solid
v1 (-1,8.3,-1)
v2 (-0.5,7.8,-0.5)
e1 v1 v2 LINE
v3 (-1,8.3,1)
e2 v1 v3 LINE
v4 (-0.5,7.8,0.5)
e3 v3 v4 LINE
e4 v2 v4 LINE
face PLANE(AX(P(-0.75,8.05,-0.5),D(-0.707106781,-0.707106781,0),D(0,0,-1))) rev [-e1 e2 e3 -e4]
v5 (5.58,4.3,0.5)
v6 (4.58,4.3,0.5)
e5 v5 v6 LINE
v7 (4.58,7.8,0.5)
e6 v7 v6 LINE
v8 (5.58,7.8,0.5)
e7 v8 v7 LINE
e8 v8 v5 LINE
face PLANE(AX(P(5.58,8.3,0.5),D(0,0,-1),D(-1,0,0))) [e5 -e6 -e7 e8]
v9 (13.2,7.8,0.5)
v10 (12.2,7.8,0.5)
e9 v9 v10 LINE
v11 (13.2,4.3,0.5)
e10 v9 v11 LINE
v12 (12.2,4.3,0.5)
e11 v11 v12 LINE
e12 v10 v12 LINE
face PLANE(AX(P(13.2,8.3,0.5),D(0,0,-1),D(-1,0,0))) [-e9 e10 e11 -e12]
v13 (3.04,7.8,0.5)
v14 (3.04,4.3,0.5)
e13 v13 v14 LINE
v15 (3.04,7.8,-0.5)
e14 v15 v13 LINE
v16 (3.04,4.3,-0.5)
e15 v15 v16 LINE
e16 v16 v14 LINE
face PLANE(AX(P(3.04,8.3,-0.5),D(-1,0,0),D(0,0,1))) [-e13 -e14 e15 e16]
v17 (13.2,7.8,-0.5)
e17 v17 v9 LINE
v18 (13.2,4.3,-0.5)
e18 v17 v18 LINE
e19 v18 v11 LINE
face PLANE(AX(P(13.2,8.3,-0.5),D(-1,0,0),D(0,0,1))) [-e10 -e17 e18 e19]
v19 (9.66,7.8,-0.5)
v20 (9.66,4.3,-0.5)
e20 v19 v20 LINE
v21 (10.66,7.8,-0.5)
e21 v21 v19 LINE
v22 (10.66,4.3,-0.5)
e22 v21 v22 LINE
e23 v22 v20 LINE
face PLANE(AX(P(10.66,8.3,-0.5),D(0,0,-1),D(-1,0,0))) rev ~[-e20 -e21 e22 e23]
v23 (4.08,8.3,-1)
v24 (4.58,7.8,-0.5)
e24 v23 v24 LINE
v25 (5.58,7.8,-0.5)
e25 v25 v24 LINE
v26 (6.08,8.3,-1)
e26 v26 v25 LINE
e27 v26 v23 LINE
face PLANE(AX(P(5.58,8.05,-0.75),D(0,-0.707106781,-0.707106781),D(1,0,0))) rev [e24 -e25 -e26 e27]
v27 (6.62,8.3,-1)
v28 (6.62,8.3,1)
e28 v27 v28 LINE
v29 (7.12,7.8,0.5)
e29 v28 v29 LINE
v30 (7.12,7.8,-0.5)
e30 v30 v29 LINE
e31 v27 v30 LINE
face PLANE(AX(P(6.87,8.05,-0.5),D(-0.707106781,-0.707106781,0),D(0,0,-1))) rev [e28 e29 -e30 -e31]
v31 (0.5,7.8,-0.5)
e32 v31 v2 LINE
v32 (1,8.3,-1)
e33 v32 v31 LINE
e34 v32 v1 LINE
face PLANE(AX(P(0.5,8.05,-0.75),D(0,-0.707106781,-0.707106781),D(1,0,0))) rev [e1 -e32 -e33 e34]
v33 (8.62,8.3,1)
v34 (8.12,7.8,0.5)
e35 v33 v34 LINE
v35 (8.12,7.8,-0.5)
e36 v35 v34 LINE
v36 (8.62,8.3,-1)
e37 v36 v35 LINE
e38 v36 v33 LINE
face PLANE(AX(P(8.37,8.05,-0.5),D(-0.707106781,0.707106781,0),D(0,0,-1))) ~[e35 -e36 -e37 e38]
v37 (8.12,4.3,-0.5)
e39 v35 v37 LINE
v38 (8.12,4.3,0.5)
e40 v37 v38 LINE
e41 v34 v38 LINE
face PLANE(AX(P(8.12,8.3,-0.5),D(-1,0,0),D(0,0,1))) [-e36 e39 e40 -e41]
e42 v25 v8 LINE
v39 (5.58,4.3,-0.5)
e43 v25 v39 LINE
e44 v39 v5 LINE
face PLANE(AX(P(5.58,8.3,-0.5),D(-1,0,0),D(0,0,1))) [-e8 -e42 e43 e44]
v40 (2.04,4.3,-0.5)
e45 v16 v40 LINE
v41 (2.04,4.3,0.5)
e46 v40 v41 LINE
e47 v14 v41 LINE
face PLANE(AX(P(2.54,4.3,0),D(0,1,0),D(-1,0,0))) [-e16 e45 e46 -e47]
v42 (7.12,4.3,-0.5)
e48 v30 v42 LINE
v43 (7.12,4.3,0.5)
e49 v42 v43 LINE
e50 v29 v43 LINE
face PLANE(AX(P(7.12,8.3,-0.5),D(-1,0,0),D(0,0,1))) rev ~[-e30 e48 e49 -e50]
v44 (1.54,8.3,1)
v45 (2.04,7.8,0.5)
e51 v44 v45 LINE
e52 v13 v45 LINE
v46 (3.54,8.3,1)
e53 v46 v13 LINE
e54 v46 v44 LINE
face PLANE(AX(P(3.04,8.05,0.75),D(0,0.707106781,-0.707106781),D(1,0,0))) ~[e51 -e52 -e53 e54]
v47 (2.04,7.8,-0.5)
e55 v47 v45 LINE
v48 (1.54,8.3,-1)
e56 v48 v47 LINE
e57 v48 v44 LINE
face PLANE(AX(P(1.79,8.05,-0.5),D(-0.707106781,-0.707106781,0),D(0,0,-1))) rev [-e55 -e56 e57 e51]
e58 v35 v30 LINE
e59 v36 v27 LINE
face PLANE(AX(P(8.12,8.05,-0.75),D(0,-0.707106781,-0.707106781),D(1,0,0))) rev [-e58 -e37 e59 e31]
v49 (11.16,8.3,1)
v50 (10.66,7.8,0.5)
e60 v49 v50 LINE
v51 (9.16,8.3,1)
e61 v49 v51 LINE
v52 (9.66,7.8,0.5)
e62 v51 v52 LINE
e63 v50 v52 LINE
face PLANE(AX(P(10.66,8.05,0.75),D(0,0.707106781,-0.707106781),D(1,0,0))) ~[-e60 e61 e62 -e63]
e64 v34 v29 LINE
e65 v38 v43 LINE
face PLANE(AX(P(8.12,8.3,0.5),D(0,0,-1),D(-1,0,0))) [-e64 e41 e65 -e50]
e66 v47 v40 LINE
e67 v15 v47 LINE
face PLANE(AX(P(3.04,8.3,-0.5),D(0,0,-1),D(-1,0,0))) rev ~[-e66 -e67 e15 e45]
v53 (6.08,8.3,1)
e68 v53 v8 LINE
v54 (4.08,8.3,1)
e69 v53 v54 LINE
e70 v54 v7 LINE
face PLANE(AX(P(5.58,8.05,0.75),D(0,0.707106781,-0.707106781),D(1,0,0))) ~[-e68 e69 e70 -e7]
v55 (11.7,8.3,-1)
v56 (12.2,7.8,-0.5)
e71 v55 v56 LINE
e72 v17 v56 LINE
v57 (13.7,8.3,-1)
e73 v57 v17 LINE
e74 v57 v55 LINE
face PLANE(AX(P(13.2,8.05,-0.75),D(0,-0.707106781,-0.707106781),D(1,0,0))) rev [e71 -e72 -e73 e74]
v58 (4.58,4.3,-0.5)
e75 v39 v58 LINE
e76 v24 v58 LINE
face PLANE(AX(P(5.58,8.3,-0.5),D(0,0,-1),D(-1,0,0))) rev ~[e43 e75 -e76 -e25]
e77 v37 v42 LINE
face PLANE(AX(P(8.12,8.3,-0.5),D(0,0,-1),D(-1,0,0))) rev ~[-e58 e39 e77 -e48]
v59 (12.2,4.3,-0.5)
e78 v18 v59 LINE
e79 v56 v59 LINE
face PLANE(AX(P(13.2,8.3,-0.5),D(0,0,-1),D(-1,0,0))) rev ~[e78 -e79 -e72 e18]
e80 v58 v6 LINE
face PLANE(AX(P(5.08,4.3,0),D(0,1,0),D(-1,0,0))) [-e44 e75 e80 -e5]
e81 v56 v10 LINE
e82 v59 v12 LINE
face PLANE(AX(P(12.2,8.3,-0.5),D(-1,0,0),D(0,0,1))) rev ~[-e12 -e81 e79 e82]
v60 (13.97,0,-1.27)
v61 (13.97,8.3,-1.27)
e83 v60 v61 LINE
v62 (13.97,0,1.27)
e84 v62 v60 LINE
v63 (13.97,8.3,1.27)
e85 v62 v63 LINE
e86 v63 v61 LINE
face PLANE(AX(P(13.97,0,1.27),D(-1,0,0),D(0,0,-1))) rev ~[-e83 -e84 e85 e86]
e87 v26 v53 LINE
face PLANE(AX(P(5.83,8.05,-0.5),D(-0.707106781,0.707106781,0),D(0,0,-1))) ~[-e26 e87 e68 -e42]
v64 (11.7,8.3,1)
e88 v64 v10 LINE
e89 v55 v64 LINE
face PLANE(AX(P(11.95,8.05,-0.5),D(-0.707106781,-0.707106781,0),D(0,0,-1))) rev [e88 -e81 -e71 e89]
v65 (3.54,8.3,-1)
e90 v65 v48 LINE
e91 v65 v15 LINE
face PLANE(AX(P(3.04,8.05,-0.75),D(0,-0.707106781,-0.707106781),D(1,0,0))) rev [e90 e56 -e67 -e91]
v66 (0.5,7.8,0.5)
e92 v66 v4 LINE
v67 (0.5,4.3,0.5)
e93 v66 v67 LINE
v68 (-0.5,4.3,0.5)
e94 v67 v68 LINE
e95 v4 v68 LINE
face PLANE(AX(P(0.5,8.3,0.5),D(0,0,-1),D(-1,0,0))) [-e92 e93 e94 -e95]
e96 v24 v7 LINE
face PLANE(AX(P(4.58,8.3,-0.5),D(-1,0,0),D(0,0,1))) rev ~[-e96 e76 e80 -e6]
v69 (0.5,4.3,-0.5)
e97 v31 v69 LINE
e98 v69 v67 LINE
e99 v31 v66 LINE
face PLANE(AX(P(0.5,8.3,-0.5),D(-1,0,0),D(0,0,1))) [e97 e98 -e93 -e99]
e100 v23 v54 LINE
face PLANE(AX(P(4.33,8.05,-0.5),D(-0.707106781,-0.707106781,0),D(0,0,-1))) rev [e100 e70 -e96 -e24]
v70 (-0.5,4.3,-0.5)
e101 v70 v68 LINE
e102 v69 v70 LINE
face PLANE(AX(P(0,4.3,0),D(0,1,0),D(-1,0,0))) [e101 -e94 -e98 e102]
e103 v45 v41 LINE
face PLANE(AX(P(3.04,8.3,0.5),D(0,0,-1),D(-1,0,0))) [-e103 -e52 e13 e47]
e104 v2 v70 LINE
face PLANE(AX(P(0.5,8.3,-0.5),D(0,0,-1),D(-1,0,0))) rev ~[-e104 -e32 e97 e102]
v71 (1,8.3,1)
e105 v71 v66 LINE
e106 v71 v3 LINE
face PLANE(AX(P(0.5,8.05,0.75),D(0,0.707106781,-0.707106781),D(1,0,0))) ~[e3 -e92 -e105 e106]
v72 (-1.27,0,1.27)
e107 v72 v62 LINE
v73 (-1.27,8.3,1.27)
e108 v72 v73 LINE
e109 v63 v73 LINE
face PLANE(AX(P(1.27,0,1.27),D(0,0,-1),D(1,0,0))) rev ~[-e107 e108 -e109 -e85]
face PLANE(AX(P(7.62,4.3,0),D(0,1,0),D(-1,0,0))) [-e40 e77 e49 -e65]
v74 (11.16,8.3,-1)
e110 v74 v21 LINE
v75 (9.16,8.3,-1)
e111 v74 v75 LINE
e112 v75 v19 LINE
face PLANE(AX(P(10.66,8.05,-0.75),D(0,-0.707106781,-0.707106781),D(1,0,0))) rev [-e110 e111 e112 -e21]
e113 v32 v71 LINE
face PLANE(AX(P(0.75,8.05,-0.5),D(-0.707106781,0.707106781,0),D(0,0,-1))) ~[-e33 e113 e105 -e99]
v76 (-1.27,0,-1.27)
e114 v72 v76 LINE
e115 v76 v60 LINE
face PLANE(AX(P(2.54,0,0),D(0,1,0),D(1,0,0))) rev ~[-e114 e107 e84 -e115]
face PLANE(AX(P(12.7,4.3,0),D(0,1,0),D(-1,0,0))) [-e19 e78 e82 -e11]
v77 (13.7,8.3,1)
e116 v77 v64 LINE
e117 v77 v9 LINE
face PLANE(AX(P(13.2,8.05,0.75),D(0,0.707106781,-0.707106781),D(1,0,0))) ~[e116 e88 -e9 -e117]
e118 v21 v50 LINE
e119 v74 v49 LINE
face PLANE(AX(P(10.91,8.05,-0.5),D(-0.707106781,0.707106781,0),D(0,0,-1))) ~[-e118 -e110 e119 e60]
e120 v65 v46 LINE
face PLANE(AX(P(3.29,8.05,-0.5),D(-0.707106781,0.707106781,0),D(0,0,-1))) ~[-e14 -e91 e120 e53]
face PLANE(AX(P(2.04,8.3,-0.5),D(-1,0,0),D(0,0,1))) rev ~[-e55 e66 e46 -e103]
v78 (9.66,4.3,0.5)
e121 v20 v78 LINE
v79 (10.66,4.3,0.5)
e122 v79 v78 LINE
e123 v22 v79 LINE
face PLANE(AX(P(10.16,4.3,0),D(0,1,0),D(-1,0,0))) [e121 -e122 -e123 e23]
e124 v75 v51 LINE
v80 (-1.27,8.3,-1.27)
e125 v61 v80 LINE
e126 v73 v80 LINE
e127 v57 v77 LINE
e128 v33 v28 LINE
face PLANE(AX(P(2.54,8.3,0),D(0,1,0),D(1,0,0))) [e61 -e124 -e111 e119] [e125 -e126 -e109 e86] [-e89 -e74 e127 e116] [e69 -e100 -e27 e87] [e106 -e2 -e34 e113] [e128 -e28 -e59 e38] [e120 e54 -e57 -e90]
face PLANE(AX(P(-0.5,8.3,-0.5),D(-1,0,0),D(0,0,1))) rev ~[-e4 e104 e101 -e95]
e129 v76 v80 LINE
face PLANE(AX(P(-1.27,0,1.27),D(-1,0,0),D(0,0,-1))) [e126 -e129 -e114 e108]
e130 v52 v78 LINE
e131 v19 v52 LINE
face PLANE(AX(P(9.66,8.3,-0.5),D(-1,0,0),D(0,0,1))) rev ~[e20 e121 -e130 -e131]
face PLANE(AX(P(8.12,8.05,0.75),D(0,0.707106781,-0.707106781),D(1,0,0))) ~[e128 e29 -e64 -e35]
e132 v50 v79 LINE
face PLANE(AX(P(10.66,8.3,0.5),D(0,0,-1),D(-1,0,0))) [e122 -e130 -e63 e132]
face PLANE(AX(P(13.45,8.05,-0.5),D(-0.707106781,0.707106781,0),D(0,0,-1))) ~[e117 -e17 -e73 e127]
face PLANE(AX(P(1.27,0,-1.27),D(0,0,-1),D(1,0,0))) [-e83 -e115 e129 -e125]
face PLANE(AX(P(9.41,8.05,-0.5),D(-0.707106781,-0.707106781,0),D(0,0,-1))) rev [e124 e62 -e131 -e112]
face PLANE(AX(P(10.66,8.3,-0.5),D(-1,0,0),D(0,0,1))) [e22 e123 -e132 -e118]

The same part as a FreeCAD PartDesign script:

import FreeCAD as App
import Part
import Sketcher
from FreeCAD import Vector


def edges_at(feature, points):
    """Names of the edges that pass closest to the given points."""
    edges = feature.Shape.Edges
    near = lambda p: min(range(len(edges)), key=lambda i: edges[i].distToShape(Part.Vertex(*p))[0])
    return sorted({f"Edge{near(p) + 1}" for p in points})


def add_polygon(sketch, points):
    """Adds a closed chain of lines whose ends are joined by coincident constraints."""
    first, n = sketch.GeometryCount, len(points)
    for a, b in zip(points, points[1:] + points[:1]):
        sketch.addGeometry(Part.LineSegment(App.Vector(*a, 0), App.Vector(*b, 0)), False)
    for i in range(n):
        sketch.addConstraint(Sketcher.Constraint("Coincident", first + i, 2, first + (i + 1) % n, 1))

doc = App.newDocument("Part")
body = doc.addObject("PartDesign::Body", "Body")

# Sketch on XZ plane
sketch1 = body.newObject("Sketcher::SketchObject", "Sketch")
sketch1.AttachmentSupport = (doc.getObject("XZ_Plane"), [""])
sketch1.MapMode = "FlatFace"
add_polygon(sketch1, [(-1.27, -1.27), (-1.27, 1.27), (1.27, 1.27), (1.27, -1.27)])  # lines 0-3
sketch1.addConstraint([
    Sketcher.Constraint("Vertical", 0),
    Sketcher.Constraint("Horizontal", 1),
    Sketcher.Constraint("Vertical", 2),
    Sketcher.Constraint("Horizontal", 3),
    Sketcher.Constraint("Symmetric", 0, 2, 2, 2, -1, 1),
    Sketcher.Constraint("Equal", 3, 0),
    Sketcher.Constraint("DistanceX", 1, 1, 1, 2, 2.54),
])
pad1 = body.newObject("PartDesign::Pad", "Pad")
pad1.Profile = sketch1
pad1.Length = 8.3
pad1.Reversed = True

# Sketch on XZ plane
sketch2 = body.newObject("Sketcher::SketchObject", "Sketch001")
sketch2.AttachmentSupport = (doc.getObject("XZ_Plane"), [""])
sketch2.MapMode = "FlatFace"
sketch2.AttachmentOffset = App.Placement(Vector(0, 0, -8.3), App.Rotation())
add_polygon(sketch2, [(0.5, 0.5), (0.5, -0.5), (-0.5, -0.5), (-0.5, 0.5)])  # lines 0-3
sketch2.addConstraint([
    Sketcher.Constraint("Vertical", 0),
    Sketcher.Constraint("Horizontal", 1),
    Sketcher.Constraint("Vertical", 2),
    Sketcher.Constraint("Horizontal", 3),
    Sketcher.Constraint("Symmetric", 0, 2, 2, 2, -1, 1),
    Sketcher.Constraint("Equal", 3, 0),
    Sketcher.Constraint("DistanceX", 1, 2, 1, 1, 1.0),
])
pocket1 = body.newObject("PartDesign::Pocket", "Pocket")
pocket1.Profile = sketch2
pocket1.Length = 4
pocket1.Reversed = True
doc.recompute()

chamfer = body.newObject("PartDesign::Chamfer", "Chamfer")
chamfer.Base = (pocket1, edges_at(pocket1, [
    (0, 8.3, 0.5),
    (0.5, 8.3, 0),
    (0, 8.3, -0.5),
    (-0.5, 8.3, 0),
]))
chamfer.Size = 0.5
doc.recompute()

linearpattern = body.newObject("PartDesign::LinearPattern", "LinearPattern")
linearpattern.Originals = [pad1, pocket1]
linearpattern.Direction = (doc.getObject("X_Axis"), [""])
linearpattern.Mode = "offset"
linearpattern.Offset = 2.54
linearpattern.Occurrences = 6
body.Tip = linearpattern
doc.recompute()

chamfer2 = body.newObject("PartDesign::Chamfer", "Chamfer001")
chamfer2.Base = (linearpattern, edges_at(linearpattern, [
    (2.54, 8.3, 0.5),
    (3.04, 8.3, 0),
    (2.54, 8.3, -0.5),
    (2.04, 8.3, 0),
    (5.08, 8.3, 0.5),
    (5.58, 8.3, 0),
    (5.08, 8.3, -0.5),
    (4.58, 8.3, 0),
    (7.62, 8.3, 0.5),
    (8.12, 8.3, 0),
    (7.62, 8.3, -0.5),
    (7.12, 8.3, 0),
    (10.16, 8.3, 0.5),
    (10.66, 8.3, 0),
    (10.16, 8.3, -0.5),
    (9.66, 8.3, 0),
    (12.7, 8.3, 0.5),
    (13.2, 8.3, 0),
    (12.7, 8.3, -0.5),
    (12.2, 8.3, 0),
]))
chamfer2.Size = 0.5

doc.recompute()
